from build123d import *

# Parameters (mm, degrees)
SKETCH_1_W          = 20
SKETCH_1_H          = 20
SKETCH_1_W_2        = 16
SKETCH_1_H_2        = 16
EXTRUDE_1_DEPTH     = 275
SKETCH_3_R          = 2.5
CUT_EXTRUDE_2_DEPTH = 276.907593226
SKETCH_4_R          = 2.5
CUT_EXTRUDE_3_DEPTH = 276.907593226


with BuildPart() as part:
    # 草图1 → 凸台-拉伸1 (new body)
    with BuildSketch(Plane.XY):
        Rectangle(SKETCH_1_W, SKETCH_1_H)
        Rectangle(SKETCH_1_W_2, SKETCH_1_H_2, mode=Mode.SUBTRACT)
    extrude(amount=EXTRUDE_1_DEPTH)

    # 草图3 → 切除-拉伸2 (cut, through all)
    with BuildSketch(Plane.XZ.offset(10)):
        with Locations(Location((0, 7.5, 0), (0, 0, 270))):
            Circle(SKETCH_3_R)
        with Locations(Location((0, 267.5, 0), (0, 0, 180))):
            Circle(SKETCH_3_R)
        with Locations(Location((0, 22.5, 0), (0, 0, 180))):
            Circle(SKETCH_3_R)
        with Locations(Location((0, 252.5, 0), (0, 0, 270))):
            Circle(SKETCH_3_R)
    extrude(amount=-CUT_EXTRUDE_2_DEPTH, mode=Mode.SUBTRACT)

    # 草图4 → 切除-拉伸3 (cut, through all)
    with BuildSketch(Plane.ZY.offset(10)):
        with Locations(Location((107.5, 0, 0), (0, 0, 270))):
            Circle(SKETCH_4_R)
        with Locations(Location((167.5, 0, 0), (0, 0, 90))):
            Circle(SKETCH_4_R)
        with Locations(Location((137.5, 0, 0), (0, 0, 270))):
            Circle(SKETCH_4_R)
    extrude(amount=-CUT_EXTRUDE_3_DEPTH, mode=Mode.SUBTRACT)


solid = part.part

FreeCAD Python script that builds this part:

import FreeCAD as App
import Part
import Sketcher

V = App.Vector
Q = App.Units.Quantity


def add_polygon(sketch, points):
    """Adds a closed chain of lines whose ends are joined by coincident constraints."""
    first, n = sketch.GeometryCount, len(points)
    for a, b in zip(points, points[1:] + points[:1]):
        sketch.addGeometry(Part.LineSegment(App.Vector(*a, 0), App.Vector(*b, 0)), False)
    for i in range(n):
        sketch.addConstraint(Sketcher.Constraint("Coincident", first + i, 2, first + (i + 1) % n, 1))

doc = App.newDocument("Part")
body = doc.addObject("PartDesign::Body", "Body")

sketch1 = body.newObject("Sketcher::SketchObject", "Sketch")
sketch1.AttachmentSupport = (doc.getObject("XY_Plane"), [""])
sketch1.MapMode = "FlatFace"
add_polygon(sketch1, [(-10, 10), (-10, -10), (10, -10), (10, 10)])
add_polygon(sketch1, [(8, -8), (-8, -8), (-8, 8), (8, 8)])
sketch1.addConstraint([
    Sketcher.Constraint("Vertical", 0),
    Sketcher.Constraint("Horizontal", 1),
    Sketcher.Constraint("Vertical", 2),
    Sketcher.Constraint("Horizontal", 3),
    Sketcher.Constraint("Horizontal", 4),
    Sketcher.Constraint("Vertical", 5),
    Sketcher.Constraint("Horizontal", 6),
    Sketcher.Constraint("Vertical", 7),
    Sketcher.Constraint("Symmetric", 0, 2, 2, 2, -1, 1),
    Sketcher.Constraint("Symmetric", 4, 2, 6, 2, -1, 1),
    Sketcher.Constraint("Equal", 3, 0),
    Sketcher.Constraint("Equal", 6, 5),
    Sketcher.Constraint("DistanceX", 1, 1, 1, 2, Q("20 mm")),
    Sketcher.Constraint("DistanceX", 4, 2, 4, 1, Q("16 mm")),
])
pad1 = body.newObject("PartDesign::Pad", "Pad")
pad1.Profile = sketch1
pad1.Length = 275

sketch2 = body.newObject("Sketcher::SketchObject", "Sketch001")
sketch2.AttachmentSupport = (doc.getObject("XZ_Plane"), [""])
sketch2.MapMode = "FlatFace"
sketch2.AttachmentOffset = App.Placement(V(0, 0, 10), App.Rotation())
sketch2.addGeometry([
    Part.Circle(V(0, 7.5, 0), V(0, 0, 1), 2.5),
    Part.Circle(V(0, 267.5, 0), V(0, 0, 1), 2.5),
    Part.Circle(V(0, 22.5, 0), V(0, 0, 1), 2.5),
    Part.Circle(V(0, 252.5, 0), V(0, 0, 1), 2.5),
], False)
sketch2.addConstraint([
    Sketcher.Constraint("Equal", 0, 1),
    Sketcher.Constraint("Equal", 1, 2),
    Sketcher.Constraint("Equal", 2, 3),
    Sketcher.Constraint("PointOnObject", 0, 3, -2),
    Sketcher.Constraint("PointOnObject", 1, 3, -2),
    Sketcher.Constraint("PointOnObject", 2, 3, -2),
    Sketcher.Constraint("PointOnObject", 3, 3, -2),
    Sketcher.Constraint("Diameter", 0, Q("5 mm")),
    Sketcher.Constraint("DistanceY", 0, 3, 1, 3, Q("260 mm")),
    Sketcher.Constraint("DistanceY", 0, 3, 2, 3, Q("15 mm")),
    Sketcher.Constraint("DistanceY", 3, 3, 1, 3, Q("15 mm")),
    Sketcher.Constraint("DistanceY", -1, 1, 0, 3, Q("7.5 mm")),
])
pocket1 = body.newObject("PartDesign::Pocket", "Pocket")
pocket1.Profile = sketch2
pocket1.Type = "ThroughAll"

sketch3 = body.newObject("Sketcher::SketchObject", "Sketch002")
sketch3.AttachmentSupport = (doc.getObject("YZ_Plane"), [""])
sketch3.MapMode = "FlatFace"
sketch3.AttachmentOffset = App.Placement(V(0, 0, -10), App.Rotation())
sketch3.addGeometry([
    Part.Circle(V(0, 107.5, 0), V(0, 0, 1), 2.5),
    Part.Circle(V(0, 167.5, 0), V(0, 0, 1), 2.5),
    Part.Circle(V(0, 137.5, 0), V(0, 0, 1), 2.5),
], False)
sketch3.addConstraint([
    Sketcher.Constraint("Equal", 0, 1),
    Sketcher.Constraint("Equal", 1, 2),
    Sketcher.Constraint("PointOnObject", 0, 3, -2),
    Sketcher.Constraint("PointOnObject", 1, 3, -2),
    Sketcher.Constraint("PointOnObject", 2, 3, -2),
    Sketcher.Constraint("Diameter", 0, Q("5 mm")),
    Sketcher.Constraint("DistanceY", 0, 3, 1, 3, Q("60 mm")),
    Sketcher.Constraint("DistanceY", 0, 3, 2, 3, Q("30 mm")),
    Sketcher.Constraint("DistanceY", -1, 1, 0, 3, Q("107.5 mm")),
])
pocket2 = body.newObject("PartDesign::Pocket", "Pocket001")
pocket2.Profile = sketch3
pocket2.Type = "ThroughAll"
pocket2.Reversed = True

doc.recompute()
